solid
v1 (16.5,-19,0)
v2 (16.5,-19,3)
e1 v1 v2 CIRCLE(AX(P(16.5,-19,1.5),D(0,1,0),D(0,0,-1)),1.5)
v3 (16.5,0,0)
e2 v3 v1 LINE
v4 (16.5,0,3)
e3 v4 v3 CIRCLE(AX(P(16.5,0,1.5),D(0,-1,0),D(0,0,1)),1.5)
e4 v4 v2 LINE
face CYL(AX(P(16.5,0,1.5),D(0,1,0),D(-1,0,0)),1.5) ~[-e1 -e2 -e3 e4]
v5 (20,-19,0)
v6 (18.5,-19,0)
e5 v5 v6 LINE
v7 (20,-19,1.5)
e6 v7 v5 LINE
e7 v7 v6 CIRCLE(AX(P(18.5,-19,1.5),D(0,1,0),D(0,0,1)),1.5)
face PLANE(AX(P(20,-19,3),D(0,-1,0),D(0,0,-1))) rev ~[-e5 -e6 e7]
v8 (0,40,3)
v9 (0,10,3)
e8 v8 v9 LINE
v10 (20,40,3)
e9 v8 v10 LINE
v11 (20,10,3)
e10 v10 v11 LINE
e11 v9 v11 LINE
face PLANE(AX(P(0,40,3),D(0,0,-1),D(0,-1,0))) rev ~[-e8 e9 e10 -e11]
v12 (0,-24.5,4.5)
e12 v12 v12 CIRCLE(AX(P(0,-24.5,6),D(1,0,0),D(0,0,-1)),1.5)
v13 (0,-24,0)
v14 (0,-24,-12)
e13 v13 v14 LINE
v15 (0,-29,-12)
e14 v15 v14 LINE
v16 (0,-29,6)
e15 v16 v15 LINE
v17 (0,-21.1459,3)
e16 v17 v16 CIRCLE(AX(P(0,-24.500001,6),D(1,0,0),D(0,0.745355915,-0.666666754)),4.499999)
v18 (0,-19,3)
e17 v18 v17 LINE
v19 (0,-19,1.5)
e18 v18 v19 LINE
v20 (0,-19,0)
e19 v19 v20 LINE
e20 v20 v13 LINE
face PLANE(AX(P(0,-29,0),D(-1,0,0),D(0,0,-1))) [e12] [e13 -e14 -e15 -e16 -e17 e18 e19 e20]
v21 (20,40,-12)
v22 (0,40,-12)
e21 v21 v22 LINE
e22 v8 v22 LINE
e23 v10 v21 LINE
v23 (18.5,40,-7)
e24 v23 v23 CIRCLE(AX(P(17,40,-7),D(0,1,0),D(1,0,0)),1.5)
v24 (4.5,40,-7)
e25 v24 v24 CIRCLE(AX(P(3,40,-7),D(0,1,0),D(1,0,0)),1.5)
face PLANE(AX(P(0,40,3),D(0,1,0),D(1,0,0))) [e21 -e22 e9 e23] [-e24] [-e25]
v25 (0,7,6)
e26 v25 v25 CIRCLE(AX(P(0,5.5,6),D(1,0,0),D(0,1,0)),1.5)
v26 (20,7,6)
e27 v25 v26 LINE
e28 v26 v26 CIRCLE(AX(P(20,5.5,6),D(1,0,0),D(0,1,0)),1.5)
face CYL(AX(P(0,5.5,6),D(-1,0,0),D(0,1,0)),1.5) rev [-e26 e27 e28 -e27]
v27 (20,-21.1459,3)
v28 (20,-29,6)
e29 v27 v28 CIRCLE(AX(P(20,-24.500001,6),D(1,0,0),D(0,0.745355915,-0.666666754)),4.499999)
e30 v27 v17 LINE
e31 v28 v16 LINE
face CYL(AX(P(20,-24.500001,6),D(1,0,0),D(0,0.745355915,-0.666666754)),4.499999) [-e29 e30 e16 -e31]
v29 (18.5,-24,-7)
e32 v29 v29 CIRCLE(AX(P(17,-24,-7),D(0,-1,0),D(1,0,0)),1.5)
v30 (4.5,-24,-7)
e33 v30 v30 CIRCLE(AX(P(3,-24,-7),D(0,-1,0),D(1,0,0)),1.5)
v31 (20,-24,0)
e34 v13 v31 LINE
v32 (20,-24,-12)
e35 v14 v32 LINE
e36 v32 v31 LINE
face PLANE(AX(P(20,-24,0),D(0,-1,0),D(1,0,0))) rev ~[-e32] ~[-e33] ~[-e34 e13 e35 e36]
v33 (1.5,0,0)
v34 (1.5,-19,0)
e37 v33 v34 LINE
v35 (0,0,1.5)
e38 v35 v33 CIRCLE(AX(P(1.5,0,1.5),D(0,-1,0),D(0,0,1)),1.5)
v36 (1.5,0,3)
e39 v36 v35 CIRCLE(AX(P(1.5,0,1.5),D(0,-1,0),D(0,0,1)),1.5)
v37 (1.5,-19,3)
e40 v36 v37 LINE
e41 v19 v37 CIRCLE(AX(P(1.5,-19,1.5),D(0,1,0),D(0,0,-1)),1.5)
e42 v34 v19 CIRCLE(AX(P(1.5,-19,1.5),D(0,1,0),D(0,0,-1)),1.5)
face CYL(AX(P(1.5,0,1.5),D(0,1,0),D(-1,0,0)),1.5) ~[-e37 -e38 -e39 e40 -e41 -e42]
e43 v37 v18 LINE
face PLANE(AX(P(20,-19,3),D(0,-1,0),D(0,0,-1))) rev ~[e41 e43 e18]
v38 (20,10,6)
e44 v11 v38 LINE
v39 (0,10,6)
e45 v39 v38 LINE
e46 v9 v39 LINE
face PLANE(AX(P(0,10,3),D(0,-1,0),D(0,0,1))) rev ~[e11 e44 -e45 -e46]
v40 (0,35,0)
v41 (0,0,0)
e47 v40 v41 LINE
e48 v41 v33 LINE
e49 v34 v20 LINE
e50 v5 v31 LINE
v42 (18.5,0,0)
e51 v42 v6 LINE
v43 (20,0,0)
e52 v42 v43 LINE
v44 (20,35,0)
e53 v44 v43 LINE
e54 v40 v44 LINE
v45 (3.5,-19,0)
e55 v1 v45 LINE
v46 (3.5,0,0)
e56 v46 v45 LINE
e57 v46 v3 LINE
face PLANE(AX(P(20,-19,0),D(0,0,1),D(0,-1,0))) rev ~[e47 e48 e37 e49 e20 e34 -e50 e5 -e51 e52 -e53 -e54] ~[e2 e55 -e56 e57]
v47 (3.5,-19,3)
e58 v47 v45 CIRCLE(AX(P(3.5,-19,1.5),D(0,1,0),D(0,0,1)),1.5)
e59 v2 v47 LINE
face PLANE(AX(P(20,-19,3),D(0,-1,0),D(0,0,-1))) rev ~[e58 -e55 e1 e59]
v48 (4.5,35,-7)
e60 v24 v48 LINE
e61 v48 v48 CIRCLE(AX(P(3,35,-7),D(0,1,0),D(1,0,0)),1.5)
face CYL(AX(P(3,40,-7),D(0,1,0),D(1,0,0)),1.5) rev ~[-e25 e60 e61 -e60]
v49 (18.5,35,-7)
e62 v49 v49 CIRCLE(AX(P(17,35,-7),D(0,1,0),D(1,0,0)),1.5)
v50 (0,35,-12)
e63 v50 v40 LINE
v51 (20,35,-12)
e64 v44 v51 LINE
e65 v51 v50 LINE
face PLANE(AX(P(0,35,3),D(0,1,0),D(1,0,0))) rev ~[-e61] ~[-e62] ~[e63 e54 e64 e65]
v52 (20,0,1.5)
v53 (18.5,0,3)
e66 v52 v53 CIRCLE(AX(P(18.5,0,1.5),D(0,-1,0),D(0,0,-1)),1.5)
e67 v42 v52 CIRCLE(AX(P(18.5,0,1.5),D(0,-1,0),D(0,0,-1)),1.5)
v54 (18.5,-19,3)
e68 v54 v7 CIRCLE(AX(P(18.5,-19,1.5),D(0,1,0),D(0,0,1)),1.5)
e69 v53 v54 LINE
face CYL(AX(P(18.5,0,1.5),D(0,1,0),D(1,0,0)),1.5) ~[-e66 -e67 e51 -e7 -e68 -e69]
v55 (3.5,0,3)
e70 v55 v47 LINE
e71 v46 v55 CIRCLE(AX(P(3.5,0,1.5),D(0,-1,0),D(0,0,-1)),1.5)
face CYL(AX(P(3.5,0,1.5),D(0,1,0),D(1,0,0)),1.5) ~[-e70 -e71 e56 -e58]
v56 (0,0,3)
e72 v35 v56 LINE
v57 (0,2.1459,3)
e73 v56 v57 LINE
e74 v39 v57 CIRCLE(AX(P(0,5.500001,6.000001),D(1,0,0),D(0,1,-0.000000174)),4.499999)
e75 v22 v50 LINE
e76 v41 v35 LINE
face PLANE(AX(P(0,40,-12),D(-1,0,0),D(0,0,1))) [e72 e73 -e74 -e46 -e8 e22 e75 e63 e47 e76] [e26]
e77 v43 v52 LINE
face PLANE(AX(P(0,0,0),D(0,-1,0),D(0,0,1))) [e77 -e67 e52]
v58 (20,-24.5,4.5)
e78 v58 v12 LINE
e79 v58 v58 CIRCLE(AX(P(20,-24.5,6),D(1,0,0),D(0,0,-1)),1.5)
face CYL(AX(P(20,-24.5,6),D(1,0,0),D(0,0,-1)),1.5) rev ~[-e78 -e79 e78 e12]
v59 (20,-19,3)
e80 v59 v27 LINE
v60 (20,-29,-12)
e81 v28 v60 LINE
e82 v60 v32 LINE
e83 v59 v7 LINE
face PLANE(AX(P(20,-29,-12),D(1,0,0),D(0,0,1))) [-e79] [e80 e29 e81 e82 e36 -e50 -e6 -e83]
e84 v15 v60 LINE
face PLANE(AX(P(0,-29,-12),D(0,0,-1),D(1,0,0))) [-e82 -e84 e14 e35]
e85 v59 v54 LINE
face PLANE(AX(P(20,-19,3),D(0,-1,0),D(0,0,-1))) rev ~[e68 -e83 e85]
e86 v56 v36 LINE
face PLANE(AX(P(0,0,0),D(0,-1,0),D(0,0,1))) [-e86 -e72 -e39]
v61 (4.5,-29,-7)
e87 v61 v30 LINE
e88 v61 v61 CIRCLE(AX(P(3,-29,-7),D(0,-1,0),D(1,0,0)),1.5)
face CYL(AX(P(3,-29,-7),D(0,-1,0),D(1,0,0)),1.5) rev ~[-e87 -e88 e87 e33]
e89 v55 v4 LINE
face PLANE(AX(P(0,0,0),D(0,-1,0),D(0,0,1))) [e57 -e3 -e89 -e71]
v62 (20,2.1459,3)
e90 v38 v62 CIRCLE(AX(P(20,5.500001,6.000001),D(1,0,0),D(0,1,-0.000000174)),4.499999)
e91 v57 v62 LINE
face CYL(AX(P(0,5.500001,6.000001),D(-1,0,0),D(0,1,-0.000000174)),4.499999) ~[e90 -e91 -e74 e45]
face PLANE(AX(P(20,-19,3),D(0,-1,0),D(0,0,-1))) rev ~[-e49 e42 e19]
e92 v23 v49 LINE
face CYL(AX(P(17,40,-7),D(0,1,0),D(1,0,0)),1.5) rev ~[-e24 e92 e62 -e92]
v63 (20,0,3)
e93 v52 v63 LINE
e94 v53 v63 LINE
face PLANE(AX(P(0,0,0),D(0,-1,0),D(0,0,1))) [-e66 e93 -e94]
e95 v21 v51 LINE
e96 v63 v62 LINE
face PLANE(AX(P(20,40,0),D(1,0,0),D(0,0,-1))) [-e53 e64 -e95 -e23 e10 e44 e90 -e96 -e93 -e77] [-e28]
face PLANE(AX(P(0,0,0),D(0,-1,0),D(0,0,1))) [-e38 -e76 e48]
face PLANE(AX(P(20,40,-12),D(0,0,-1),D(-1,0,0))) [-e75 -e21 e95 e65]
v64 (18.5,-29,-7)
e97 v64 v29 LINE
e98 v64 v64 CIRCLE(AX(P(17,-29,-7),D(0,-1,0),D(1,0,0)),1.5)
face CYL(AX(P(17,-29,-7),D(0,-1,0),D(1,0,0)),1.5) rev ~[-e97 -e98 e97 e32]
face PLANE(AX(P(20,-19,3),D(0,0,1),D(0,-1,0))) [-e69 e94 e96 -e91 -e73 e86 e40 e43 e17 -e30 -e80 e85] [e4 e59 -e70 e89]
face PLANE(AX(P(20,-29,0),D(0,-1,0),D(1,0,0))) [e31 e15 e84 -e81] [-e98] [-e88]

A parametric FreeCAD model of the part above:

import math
import FreeCAD as App
import Part
import Sketcher


def add_polygon(sketch, points):
    """Adds a closed chain of lines whose ends are joined by coincident constraints."""
    first, n = sketch.GeometryCount, len(points)
    for a, b in zip(points, points[1:] + points[:1]):
        sketch.addGeometry(Part.LineSegment(App.Vector(*a, 0), App.Vector(*b, 0)), False)
    for i in range(n):
        sketch.addConstraint(Sketcher.Constraint("Coincident", first + i, 2, first + (i + 1) % n, 1))

doc = App.newDocument("Part")
body = doc.addObject("PartDesign::Body", "Body")

sketch1 = body.newObject("Sketcher::SketchObject", "Sketch")
sketch1.AttachmentSupport = (doc.getObject("YZ_Plane"), [""])
sketch1.MapMode = "FlatFace"
sketch1.addGeometry([
    Part.LineSegment(App.Vector(0, 0, 0), App.Vector(40, 0, 0)),
    Part.LineSegment(App.Vector(40, 0, 0), App.Vector(40, 3, 0)),
    Part.LineSegment(App.Vector(40, 3, 0), App.Vector(10, 3, 0)),
    Part.LineSegment(App.Vector(10, 3, 0), App.Vector(10, 6, 0)),
    Part.ArcOfCircle(Part.Circle(App.Vector(5.5, 6, 0), App.Vector(0, 0, 1), 4.5), math.radians(0), math.radians(222)),
    Part.LineSegment(App.Vector(2.1, 3, 0), App.Vector(0, 3, 0)),
    Part.LineSegment(App.Vector(0, 3, 0), App.Vector(0, 0, 0)),
    Part.Circle(App.Vector(5.5, 6, 0), App.Vector(0, 0, 1), 1.5),
], False)
sketch1.addConstraint([
    Sketcher.Constraint("Coincident", 0, 2, 1, 1),
    Sketcher.Constraint("Coincident", 1, 2, 2, 1),
    Sketcher.Constraint("Coincident", 2, 2, 3, 1),
    Sketcher.Constraint("Tangent", 3, 2, 4, 1),
    Sketcher.Constraint("Coincident", 4, 2, 5, 1),
    Sketcher.Constraint("Coincident", 5, 2, 6, 1),
    Sketcher.Constraint("Coincident", 6, 2, 0, 1),
    Sketcher.Constraint("Horizontal", 0),
    Sketcher.Constraint("Vertical", 1),
    Sketcher.Constraint("Horizontal", 2),
    Sketcher.Constraint("Vertical", 3),
    Sketcher.Constraint("Horizontal", 5),
    Sketcher.Constraint("Vertical", 6),
    Sketcher.Constraint("Coincident", 6, 2, -1, 1),
    Sketcher.Constraint("Coincident", 7, 3, 4, 3),
    Sketcher.Constraint("Horizontal", 2, 2, 4, 2),
    Sketcher.Constraint("Equal", 1, 3),
    Sketcher.Constraint("Diameter", 7, 3.0),
    Sketcher.Constraint("DistanceY", 1, 1, 1, 2, 3.0),
    Sketcher.Constraint("Radius", 4, 4.5),
    Sketcher.Constraint("DistanceX", 0, 1, 0, 2, 40.0),
    Sketcher.Constraint("DistanceX", 2, 2, 2, 1, 30.0),
])
pad1 = body.newObject("PartDesign::Pad", "Pad")
pad1.Profile = sketch1
pad1.Length = 20

sketch2 = body.newObject("Sketcher::SketchObject", "Sketch001")
sketch2.AttachmentSupport = (doc.getObject("XZ_Plane"), [""])
sketch2.MapMode = "FlatFace"
sketch2.addGeometry([
    Part.ArcOfCircle(Part.Circle(App.Vector(1.5, 1.5, 0), App.Vector(0, 0, 1), 1.5), math.radians(90), math.radians(270)),
    Part.LineSegment(App.Vector(1.5, 0, 0), App.Vector(3.5, 0, 0)),
    Part.ArcOfCircle(Part.Circle(App.Vector(3.5, 1.5, 0), App.Vector(0, 0, 1), 1.5), math.radians(-90), math.radians(90)),
    Part.LineSegment(App.Vector(3.5, 3, 0), App.Vector(1.5, 3, 0)),
    Part.ArcOfCircle(Part.Circle(App.Vector(16.5, 1.5, 0), App.Vector(0, 0, 1), 1.5), math.radians(90), math.radians(270)),
    Part.LineSegment(App.Vector(16.5, 0, 0), App.Vector(18.5, 0, 0)),
    Part.ArcOfCircle(Part.Circle(App.Vector(18.5, 1.5, 0), App.Vector(0, 0, 1), 1.5), math.radians(-90), math.radians(90)),
    Part.LineSegment(App.Vector(18.5, 3, 0), App.Vector(16.5, 3, 0)),
], False)
sketch2.addConstraint([
    Sketcher.Constraint("Tangent", 0, 2, 1, 1),
    Sketcher.Constraint("Tangent", 1, 2, 2, 1),
    Sketcher.Constraint("Tangent", 2, 2, 3, 1),
    Sketcher.Constraint("Tangent", 3, 2, 0, 1),
    Sketcher.Constraint("Tangent", 4, 2, 5, 1),
    Sketcher.Constraint("Tangent", 5, 2, 6, 1),
    Sketcher.Constraint("Tangent", 6, 2, 7, 1),
    Sketcher.Constraint("Tangent", 7, 2, 4, 1),
    Sketcher.Constraint("Horizontal", 1),
    Sketcher.Constraint("Horizontal", 3),
    Sketcher.Constraint("Horizontal", 5),
    Sketcher.Constraint("Horizontal", 7),
    Sketcher.Constraint("Equal", 2, 4),
    Sketcher.Constraint("PointOnObject", 0, 2, -1),
    Sketcher.Constraint("PointOnObject", 4, 2, -1),
    Sketcher.Constraint("Equal", 3, 5),
    Sketcher.Constraint("Radius", 0, 1.5),
    Sketcher.Constraint("DistanceX", -1, 1, 0, 3, 1.5),
    Sketcher.Constraint("DistanceX", 1, 1, 1, 2, 2.0),
    Sketcher.Constraint("DistanceX", 2, 3, 4, 3, 13.0),
])
pad2 = body.newObject("PartDesign::Pad", "Pad001")
pad2.Profile = sketch2
pad2.Length = 19

sketch3 = body.newObject("Sketcher::SketchObject", "Sketch002")
sketch3.AttachmentSupport = (doc.getObject("YZ_Plane"), [""])
sketch3.MapMode = "FlatFace"
sketch3.AttachmentOffset = App.Placement(App.Vector(0, 0, 20), App.Rotation())
sketch3.addGeometry([
    Part.LineSegment(App.Vector(-19, 0, 0), App.Vector(-19, 3, 0)),
    Part.LineSegment(App.Vector(-19, 3, 0), App.Vector(-21.1, 3, 0)),
    Part.ArcOfCircle(Part.Circle(App.Vector(-24.5, 6, 0), App.Vector(0, 0, 1), 4.5), math.radians(-42), math.radians(180)),
    Part.LineSegment(App.Vector(-29, 6, 0), App.Vector(-29, 0, 0)),
    Part.LineSegment(App.Vector(-29, 0, 0), App.Vector(-19, 0, 0)),
    Part.Circle(App.Vector(-24.5, 6, 0), App.Vector(0, 0, 1), 1.5),
], False)
sketch3.addConstraint([
    Sketcher.Constraint("Coincident", 0, 2, 1, 1),
    Sketcher.Constraint("Coincident", 1, 2, 2, 1),
    Sketcher.Constraint("Tangent", 2, 2, 3, 1),
    Sketcher.Constraint("Coincident", 3, 2, 4, 1),
    Sketcher.Constraint("Coincident", 4, 2, 0, 1),
    Sketcher.Constraint("Vertical", 0),
    Sketcher.Constraint("Horizontal", 1),
    Sketcher.Constraint("Vertical", 3),
    Sketcher.Constraint("Horizontal", 4),
    Sketcher.Constraint("Coincident", 5, 3, 2, 3),
    Sketcher.Constraint("PointOnObject", 3, 2, -1),
    Sketcher.Constraint("Diameter", 5, 3.0),
    Sketcher.Constraint("DistanceY", 0, 1, 0, 2, 3.0),
    Sketcher.Constraint("DistanceY", 0, 2, 2, 3, 3.0),
    Sketcher.Constraint("Radius", 2, 4.5),
    Sketcher.Constraint("DistanceX", 4, 1, 4, 2, 10.0),
    Sketcher.Constraint("DistanceX", 0, 2, -1, 1, 19.0),
])
pad3 = body.newObject("PartDesign::Pad", "Pad002")
pad3.Profile = sketch3
pad3.Length = 20
pad3.Reversed = True

sketch4 = body.newObject("Sketcher::SketchObject", "Sketch003")
sketch4.AttachmentSupport = (doc.getObject("XZ_Plane"), [""])
sketch4.MapMode = "FlatFace"
sketch4.AttachmentOffset = App.Placement(App.Vector(0, 0, -40), App.Rotation())
add_polygon(sketch4, [(0, -12), (0, 0), (20, 0), (20, -12)])
sketch4.addGeometry(Part.Circle(App.Vector(3, -7, 0), App.Vector(0, 0, 1), 1.5), False)
sketch4.addGeometry(Part.Circle(App.Vector(17, -7, 0), App.Vector(0, 0, 1), 1.5), False)
sketch4.addConstraint([
    Sketcher.Constraint("Vertical", 0),
    Sketcher.Constraint("Horizontal", 1),
    Sketcher.Constraint("Vertical", 2),
    Sketcher.Constraint("Horizontal", 3),
    Sketcher.Constraint("Coincident", 0, 2, -1, 1),
    Sketcher.Constraint("Equal", 4, 5),
    Sketcher.Constraint("Horizontal", 4, 3, 5, 3),
    Sketcher.Constraint("Diameter", 4, 3.0),
    Sketcher.Constraint("DistanceX", 1, 1, 1, 2, 20.0),
    Sketcher.Constraint("DistanceY", 0, 1, 0, 2, 12.0),
    Sketcher.Constraint("DistanceX", -1, 1, 4, 3, 3.0),
    Sketcher.Constraint("DistanceX", 5, 3, 1, 2, 3.0),
    Sketcher.Constraint("DistanceY", 4, 3, -1, 1, 7.0),
])
pad4 = body.newObject("PartDesign::Pad", "Pad003")
pad4.Profile = sketch4
pad4.Length = 5

sketch5 = body.newObject("Sketcher::SketchObject", "Sketch004")
sketch5.AttachmentSupport = (doc.getObject("XZ_Plane"), [""])
sketch5.MapMode = "FlatFace"
sketch5.AttachmentOffset = App.Placement(App.Vector(0, 0, 29), App.Rotation())
add_polygon(sketch5, [(20, 0), (0, 0), (0, -12), (20, -12)])
sketch5.addGeometry(Part.Circle(App.Vector(3, -7, 0), App.Vector(0, 0, 1), 1.5), False)
sketch5.addGeometry(Part.Circle(App.Vector(17, -7, 0), App.Vector(0, 0, 1), 1.5), False)
sketch5.addConstraint([
    Sketcher.Constraint("Horizontal", 0),
    Sketcher.Constraint("Vertical", 1),
    Sketcher.Constraint("Horizontal", 2),
    Sketcher.Constraint("Vertical", 3),
    Sketcher.Constraint("Coincident", 0, 2, -1, 1),
    Sketcher.Constraint("Equal", 4, 5),
    Sketcher.Constraint("Horizontal", 4, 3, 5, 3),
    Sketcher.Constraint("Diameter", 4, 3.0),
    Sketcher.Constraint("DistanceX", 0, 2, 0, 1, 20.0),
    Sketcher.Constraint("DistanceY", 1, 2, 1, 1, 12.0),
    Sketcher.Constraint("DistanceX", -1, 1, 4, 3, 3.0),
    Sketcher.Constraint("DistanceX", 5, 3, 2, 2, 3.0),
    Sketcher.Constraint("DistanceY", 4, 3, -1, 1, 7.0),
])
pad5 = body.newObject("PartDesign::Pad", "Pad004")
pad5.Profile = sketch5
pad5.Length = 5
pad5.Reversed = True

doc.recompute()
